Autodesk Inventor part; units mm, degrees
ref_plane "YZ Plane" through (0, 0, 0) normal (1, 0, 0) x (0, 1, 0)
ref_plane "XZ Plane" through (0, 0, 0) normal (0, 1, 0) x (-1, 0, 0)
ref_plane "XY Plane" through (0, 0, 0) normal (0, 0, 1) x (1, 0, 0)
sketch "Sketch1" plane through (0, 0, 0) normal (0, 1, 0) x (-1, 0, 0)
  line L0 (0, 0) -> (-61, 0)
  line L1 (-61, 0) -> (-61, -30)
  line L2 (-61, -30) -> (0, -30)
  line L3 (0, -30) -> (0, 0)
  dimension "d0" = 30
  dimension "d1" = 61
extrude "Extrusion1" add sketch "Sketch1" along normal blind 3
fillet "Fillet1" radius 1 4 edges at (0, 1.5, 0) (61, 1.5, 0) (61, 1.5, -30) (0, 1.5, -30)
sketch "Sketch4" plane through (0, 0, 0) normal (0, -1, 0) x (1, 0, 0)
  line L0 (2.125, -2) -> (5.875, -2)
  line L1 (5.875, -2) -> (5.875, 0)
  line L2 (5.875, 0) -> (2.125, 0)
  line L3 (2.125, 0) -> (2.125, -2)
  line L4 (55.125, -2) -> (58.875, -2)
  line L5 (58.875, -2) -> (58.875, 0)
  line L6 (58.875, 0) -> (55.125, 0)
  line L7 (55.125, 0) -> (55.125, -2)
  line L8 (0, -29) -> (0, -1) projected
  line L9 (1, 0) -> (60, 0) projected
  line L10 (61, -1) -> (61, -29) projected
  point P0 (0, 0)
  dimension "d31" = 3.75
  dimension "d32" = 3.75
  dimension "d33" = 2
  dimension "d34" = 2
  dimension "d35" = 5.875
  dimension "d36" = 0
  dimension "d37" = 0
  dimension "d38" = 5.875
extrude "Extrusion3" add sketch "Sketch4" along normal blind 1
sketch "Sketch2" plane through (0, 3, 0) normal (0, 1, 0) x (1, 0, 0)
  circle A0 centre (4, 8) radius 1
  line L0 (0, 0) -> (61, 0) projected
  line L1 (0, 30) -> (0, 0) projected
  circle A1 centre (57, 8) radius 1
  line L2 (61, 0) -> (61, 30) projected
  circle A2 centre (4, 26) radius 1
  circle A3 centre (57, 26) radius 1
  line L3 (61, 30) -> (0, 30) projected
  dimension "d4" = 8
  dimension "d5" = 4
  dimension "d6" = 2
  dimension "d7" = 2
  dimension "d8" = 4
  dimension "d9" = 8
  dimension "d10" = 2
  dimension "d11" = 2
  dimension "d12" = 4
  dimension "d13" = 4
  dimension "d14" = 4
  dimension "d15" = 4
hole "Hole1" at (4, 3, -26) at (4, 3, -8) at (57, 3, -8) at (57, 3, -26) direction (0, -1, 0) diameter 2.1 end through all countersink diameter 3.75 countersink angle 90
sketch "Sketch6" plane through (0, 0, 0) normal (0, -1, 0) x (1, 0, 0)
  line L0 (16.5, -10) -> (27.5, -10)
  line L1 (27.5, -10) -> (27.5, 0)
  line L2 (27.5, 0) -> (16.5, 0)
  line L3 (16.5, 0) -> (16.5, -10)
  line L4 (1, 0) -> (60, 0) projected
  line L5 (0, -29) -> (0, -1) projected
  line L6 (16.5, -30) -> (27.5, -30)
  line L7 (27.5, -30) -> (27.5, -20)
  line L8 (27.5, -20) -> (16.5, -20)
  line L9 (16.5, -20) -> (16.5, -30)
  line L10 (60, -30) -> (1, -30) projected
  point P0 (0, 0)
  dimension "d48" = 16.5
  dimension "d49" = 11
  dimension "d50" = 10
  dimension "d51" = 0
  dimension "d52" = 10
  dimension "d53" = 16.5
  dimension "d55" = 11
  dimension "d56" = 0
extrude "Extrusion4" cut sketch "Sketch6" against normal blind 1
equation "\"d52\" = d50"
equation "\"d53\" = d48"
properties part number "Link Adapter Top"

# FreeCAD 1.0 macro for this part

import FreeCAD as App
import Part
import Sketcher
Q = App.Units.Quantity


def edges_at(feature, points):
    """Names of the edges that pass closest to the given points."""
    edges = feature.Shape.Edges
    near = lambda p: min(range(len(edges)), key=lambda i: edges[i].distToShape(Part.Vertex(*p))[0])
    return sorted({f"Edge{near(p) + 1}" for p in points})


def add_polygon(sketch, points):
    """Adds a closed chain of lines whose ends are joined by coincident constraints."""
    first, n = sketch.GeometryCount, len(points)
    for a, b in zip(points, points[1:] + points[:1]):
        sketch.addGeometry(Part.LineSegment(App.Vector(*a, 0), App.Vector(*b, 0)), False)
    for i in range(n):
        sketch.addConstraint(Sketcher.Constraint("Coincident", first + i, 2, first + (i + 1) % n, 1))

doc = App.newDocument("Part")
params = doc.addObject("Spreadsheet::Sheet", "Params")
for row, (alias, value) in enumerate([
    ("sketch1_width", "61 mm"),
    ("sketch1_height", "30 mm"),
    ("pad1_length", "3 mm"),
    ("fillet_radius", "1 mm"),
    ("sketch2_height", "2 mm"),
    ("sketch2_width", "3.75 mm"),
    ("pad2_length", "1 mm"),
    ("sketch3_diameter", "2.1 mm"),
    ("hole_diameter", "2.1 mm"),
    ("hole_csink_diameter", "3.75 mm"),
    ("sketch4_width", "11 mm"),
    ("sketch4_height", "10 mm"),
    ("pocket1_length", "1 mm"),
], start=1):
    params.set(f"A{row}", alias)
    params.set(f"B{row}", "=" + value)
    params.setAlias(f"B{row}", alias)

body = doc.addObject("PartDesign::Body", "Body")

# Sketch on XZ plane
sketch1 = body.newObject("Sketcher::SketchObject", "Sketch")
sketch1.AttachmentSupport = (doc.getObject("XZ_Plane"), [""])
sketch1.MapMode = "FlatFace"
add_polygon(sketch1, [(0, -30), (0, 0), (61, 0), (61, -30)])  # lines 0-3
sketch1.addConstraint(Sketcher.Constraint("Vertical", 0))
sketch1.addConstraint(Sketcher.Constraint("Horizontal", 1))
sketch1.addConstraint(Sketcher.Constraint("Vertical", 2))
sketch1.addConstraint(Sketcher.Constraint("Horizontal", 3))
sketch1.addConstraint(Sketcher.Constraint("Coincident", 0, 2, -1, 1))
sketch1.addConstraint(Sketcher.Constraint("DistanceX", 1, 1, 1, 2, Q("61 mm")))
sketch1.addConstraint(Sketcher.Constraint("DistanceY", 0, 1, 0, 2, Q("30 mm")))
sketch1.setExpression("Constraints[9]", "Params.sketch1_width")
sketch1.setExpression("Constraints[10]", "Params.sketch1_height")
pad1 = body.newObject("PartDesign::Pad", "Pad")
pad1.Profile = sketch1
pad1.setExpression("Length", "Params.pad1_length")
pad1.Reversed = True
doc.recompute()

fillet = body.newObject("PartDesign::Fillet", "Fillet")
fillet.Base = (pad1, edges_at(pad1, [
    (0, 1.5, 0),
    (61, 1.5, 0),
    (61, 1.5, -30),
    (0, 1.5, -30),
]))
fillet.setExpression("Radius", "Params.fillet_radius")

# Sketch on XZ plane
sketch2 = body.newObject("Sketcher::SketchObject", "Sketch001")
sketch2.AttachmentSupport = (doc.getObject("XZ_Plane"), [""])
sketch2.MapMode = "FlatFace"
add_polygon(sketch2, [(2.1, 0), (2.1, -2), (5.9, -2), (5.9, 0)])  # lines 0-3
add_polygon(sketch2, [(58.9, 0), (55.1, 0), (55.1, -2), (58.9, -2)])  # lines 4-7
sketch2.addConstraint(Sketcher.Constraint("Vertical", 0))
sketch2.addConstraint(Sketcher.Constraint("Horizontal", 1))
sketch2.addConstraint(Sketcher.Constraint("Vertical", 2))
sketch2.addConstraint(Sketcher.Constraint("Horizontal", 3))
sketch2.addConstraint(Sketcher.Constraint("Horizontal", 4))
sketch2.addConstraint(Sketcher.Constraint("Vertical", 5))
sketch2.addConstraint(Sketcher.Constraint("Horizontal", 6))
sketch2.addConstraint(Sketcher.Constraint("Vertical", 7))
sketch2.addConstraint(Sketcher.Constraint("PointOnObject", 2, 2, -1))
sketch2.addConstraint(Sketcher.Constraint("PointOnObject", 4, 2, -1))
sketch2.addConstraint(Sketcher.Constraint("Horizontal", 1, 2, 5, 2))
sketch2.addConstraint(Sketcher.Constraint("Equal", 3, 4))
sketch2.addConstraint(Sketcher.Constraint("DistanceY", 0, 2, 0, 1, Q("2 mm")))
sketch2.addConstraint(Sketcher.Constraint("DistanceX", 1, 1, 1, 2, Q("3.75 mm")))
sketch2.addConstraint(Sketcher.Constraint("DistanceX", -1, 1, 1, 2, Q("5.875 mm")))
sketch2.addConstraint(Sketcher.Constraint("DistanceX", 3, 2, 4, 2, Q("53 mm")))
sketch2.setExpression("Constraints[20]", "Params.sketch2_height")
sketch2.setExpression("Constraints[21]", "Params.sketch2_width")
pad2 = body.newObject("PartDesign::Pad", "Pad001")
pad2.Profile = sketch2
pad2.setExpression("Length", "Params.pad2_length")

# Sketch on XZ plane
sketch3 = body.newObject("Sketcher::SketchObject", "Sketch002")
sketch3.AttachmentSupport = (doc.getObject("XZ_Plane"), [""])
sketch3.MapMode = "FlatFace"
sketch3.AttachmentOffset = App.Placement(App.Vector(0, 0, -3), App.Rotation())
sketch3.addGeometry(Part.Circle(App.Vector(4, -26, 0), App.Vector(0, 0, 1), 1.1), False)
sketch3.addGeometry(Part.Circle(App.Vector(4, -8, 0), App.Vector(0, 0, 1), 1.1), False)
sketch3.addGeometry(Part.Circle(App.Vector(57, -8, 0), App.Vector(0, 0, 1), 1.1), False)
sketch3.addGeometry(Part.Circle(App.Vector(57, -26, 0), App.Vector(0, 0, 1), 1.1), False)
sketch3.addConstraint(Sketcher.Constraint("Equal", 0, 1))
sketch3.addConstraint(Sketcher.Constraint("Equal", 1, 2))
sketch3.addConstraint(Sketcher.Constraint("Equal", 2, 3))
sketch3.addConstraint(Sketcher.Constraint("Horizontal", 1, 3, 2, 3))
sketch3.addConstraint(Sketcher.Constraint("Horizontal", 0, 3, 3, 3))
sketch3.addConstraint(Sketcher.Constraint("Vertical", 0, 3, 1, 3))
sketch3.addConstraint(Sketcher.Constraint("Vertical", 2, 3, 3, 3))
sketch3.addConstraint(Sketcher.Constraint("Diameter", 0, Q("2.1 mm")))
sketch3.addConstraint(Sketcher.Constraint("DistanceX", -1, 1, 0, 3, Q("4 mm")))
sketch3.addConstraint(Sketcher.Constraint("DistanceY", 0, 3, -1, 1, Q("26 mm")))
sketch3.addConstraint(Sketcher.Constraint("DistanceY", 1, 3, -1, 1, Q("8 mm")))
sketch3.addConstraint(Sketcher.Constraint("DistanceX", -1, 1, 2, 3, Q("57 mm")))
sketch3.setExpression("Constraints[7]", "Params.sketch3_diameter")
doc.recompute()
hole = body.newObject("PartDesign::Hole", "Hole")
hole.Profile = sketch3
hole.ThreadType = "None"
hole.setExpression("Diameter", "Params.hole_diameter")
hole.DepthType = "ThroughAll"
hole.HoleCutType = "Countersink"
hole.setExpression("HoleCutDiameter", "Params.hole_csink_diameter")
hole.HoleCutCountersinkAngle = 90
hole.Reversed = True

# Sketch on XZ plane
sketch4 = body.newObject("Sketcher::SketchObject", "Sketch003")
sketch4.AttachmentSupport = (doc.getObject("XZ_Plane"), [""])
sketch4.MapMode = "FlatFace"
add_polygon(sketch4, [(16, 0), (16, -10), (28, -10), (28, 0)])  # lines 0-3
add_polygon(sketch4, [(16, -20), (16, -30), (28, -30), (28, -20)])  # lines 4-7
sketch4.addConstraint(Sketcher.Constraint("Vertical", 0))
sketch4.addConstraint(Sketcher.Constraint("Horizontal", 1))
sketch4.addConstraint(Sketcher.Constraint("Vertical", 2))
sketch4.addConstraint(Sketcher.Constraint("Horizontal", 3))
sketch4.addConstraint(Sketcher.Constraint("Vertical", 4))
sketch4.addConstraint(Sketcher.Constraint("Horizontal", 5))
sketch4.addConstraint(Sketcher.Constraint("Vertical", 6))
sketch4.addConstraint(Sketcher.Constraint("Horizontal", 7))
sketch4.addConstraint(Sketcher.Constraint("PointOnObject", 2, 2, -1))
sketch4.addConstraint(Sketcher.Constraint("Vertical", 3, 2, 4, 2))
sketch4.addConstraint(Sketcher.Constraint("Vertical", 2, 2, 5, 2))
sketch4.addConstraint(Sketcher.Constraint("Equal", 2, 4))
sketch4.addConstraint(Sketcher.Constraint("DistanceX", 1, 1, 1, 2, Q("11 mm")))
sketch4.addConstraint(Sketcher.Constraint("DistanceY", 0, 2, 0, 1, Q("10 mm")))
sketch4.addConstraint(Sketcher.Constraint("DistanceY", 6, 2, 1, 2, Q("10 mm")))
sketch4.addConstraint(Sketcher.Constraint("DistanceX", -1, 1, 0, 2, Q("16.5 mm")))
sketch4.setExpression("Constraints[20]", "Params.sketch4_width")
sketch4.setExpression("Constraints[21]", "Params.sketch4_height")
pocket1 = body.newObject("PartDesign::Pocket", "Pocket")
pocket1.Profile = sketch4
pocket1.setExpression("Length", "Params.pocket1_length")

doc.recompute()
